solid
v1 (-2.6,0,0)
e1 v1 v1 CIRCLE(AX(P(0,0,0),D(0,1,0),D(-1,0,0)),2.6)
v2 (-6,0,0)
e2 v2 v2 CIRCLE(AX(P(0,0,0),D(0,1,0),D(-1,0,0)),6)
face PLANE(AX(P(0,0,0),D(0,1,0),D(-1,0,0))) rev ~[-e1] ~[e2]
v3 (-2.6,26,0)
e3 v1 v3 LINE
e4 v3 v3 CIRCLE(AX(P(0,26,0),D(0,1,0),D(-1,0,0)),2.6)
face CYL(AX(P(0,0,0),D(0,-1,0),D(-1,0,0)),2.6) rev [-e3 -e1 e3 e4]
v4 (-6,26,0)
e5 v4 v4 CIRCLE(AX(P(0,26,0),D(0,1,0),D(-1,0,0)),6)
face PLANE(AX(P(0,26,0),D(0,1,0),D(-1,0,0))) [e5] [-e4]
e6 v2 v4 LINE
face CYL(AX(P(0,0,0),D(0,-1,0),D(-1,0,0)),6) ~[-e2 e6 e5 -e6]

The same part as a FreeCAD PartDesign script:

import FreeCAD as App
import Part
import Sketcher
Q = App.Units.Quantity

doc = App.newDocument("Part")
body = doc.addObject("PartDesign::Body", "Body")

# Sketch on XZ plane
sketch1 = body.newObject("Sketcher::SketchObject", "Sketch")
sketch1.AttachmentSupport = (doc.getObject("XZ_Plane"), [""])
sketch1.MapMode = "FlatFace"
sketch1.addGeometry(Part.Circle(App.Vector(0, 0, 0), App.Vector(0, 0, 1), 6), False)
sketch1.addGeometry(Part.Circle(App.Vector(0, 0, 0), App.Vector(0, 0, 1), 2.6), False)
sketch1.addConstraint(Sketcher.Constraint("Coincident", 0, 3, -1, 1))
sketch1.addConstraint(Sketcher.Constraint("Coincident", 1, 3, -1, 1))
sketch1.addConstraint(Sketcher.Constraint("Diameter", 0, Q("12 mm")))
sketch1.addConstraint(Sketcher.Constraint("Diameter", 1, Q("5.2 mm")))
pad1 = body.newObject("PartDesign::Pad", "Pad")
pad1.Profile = sketch1
pad1.Length = 26
pad1.Reversed = True

doc.recompute()
